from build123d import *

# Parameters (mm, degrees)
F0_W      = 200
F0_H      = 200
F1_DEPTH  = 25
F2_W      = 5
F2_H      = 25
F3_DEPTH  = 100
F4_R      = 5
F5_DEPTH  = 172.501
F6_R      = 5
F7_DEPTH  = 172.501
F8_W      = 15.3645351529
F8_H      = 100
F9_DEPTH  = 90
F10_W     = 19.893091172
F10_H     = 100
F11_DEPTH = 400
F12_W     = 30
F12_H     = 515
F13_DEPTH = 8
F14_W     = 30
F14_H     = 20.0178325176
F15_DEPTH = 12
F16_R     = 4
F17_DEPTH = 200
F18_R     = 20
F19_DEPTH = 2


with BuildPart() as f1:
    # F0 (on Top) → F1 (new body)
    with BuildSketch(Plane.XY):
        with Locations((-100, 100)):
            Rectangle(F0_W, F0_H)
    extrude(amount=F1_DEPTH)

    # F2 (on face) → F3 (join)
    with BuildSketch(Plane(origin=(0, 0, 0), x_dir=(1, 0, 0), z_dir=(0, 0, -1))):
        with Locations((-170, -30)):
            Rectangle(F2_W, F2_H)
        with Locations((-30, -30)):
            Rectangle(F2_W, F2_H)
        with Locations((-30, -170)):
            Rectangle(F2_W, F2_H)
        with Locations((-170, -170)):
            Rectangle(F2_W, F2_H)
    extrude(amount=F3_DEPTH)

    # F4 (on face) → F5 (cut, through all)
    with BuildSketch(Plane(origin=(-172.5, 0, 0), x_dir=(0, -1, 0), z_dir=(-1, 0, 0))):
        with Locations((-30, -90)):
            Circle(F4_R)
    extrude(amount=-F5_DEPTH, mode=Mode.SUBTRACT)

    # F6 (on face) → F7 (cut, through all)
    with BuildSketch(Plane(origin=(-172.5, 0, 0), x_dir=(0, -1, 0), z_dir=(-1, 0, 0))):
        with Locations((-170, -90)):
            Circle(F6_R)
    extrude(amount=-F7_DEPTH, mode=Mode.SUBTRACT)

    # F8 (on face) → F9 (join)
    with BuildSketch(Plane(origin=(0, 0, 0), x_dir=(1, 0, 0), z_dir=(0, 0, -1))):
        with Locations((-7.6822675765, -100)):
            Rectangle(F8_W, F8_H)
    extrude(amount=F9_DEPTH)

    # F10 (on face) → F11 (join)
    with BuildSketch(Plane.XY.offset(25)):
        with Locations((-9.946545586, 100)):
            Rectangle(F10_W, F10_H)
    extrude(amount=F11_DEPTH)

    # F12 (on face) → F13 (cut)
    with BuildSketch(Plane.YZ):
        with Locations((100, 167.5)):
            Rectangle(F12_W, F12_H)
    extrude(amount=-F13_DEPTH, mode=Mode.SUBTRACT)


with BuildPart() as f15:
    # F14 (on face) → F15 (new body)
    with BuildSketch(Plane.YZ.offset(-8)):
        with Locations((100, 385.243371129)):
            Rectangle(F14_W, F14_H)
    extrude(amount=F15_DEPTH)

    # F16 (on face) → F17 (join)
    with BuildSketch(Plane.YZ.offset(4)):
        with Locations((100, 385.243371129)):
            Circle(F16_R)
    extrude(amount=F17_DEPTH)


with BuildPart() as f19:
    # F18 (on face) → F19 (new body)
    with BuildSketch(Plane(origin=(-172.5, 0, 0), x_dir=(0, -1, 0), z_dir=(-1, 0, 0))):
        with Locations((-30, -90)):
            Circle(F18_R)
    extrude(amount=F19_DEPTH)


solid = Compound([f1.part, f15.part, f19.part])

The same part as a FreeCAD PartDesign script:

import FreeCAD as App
import Part
import Sketcher
Q = App.Units.Quantity


def add_polygon(sketch, points):
    """Adds a closed chain of lines whose ends are joined by coincident constraints."""
    first, n = sketch.GeometryCount, len(points)
    for a, b in zip(points, points[1:] + points[:1]):
        sketch.addGeometry(Part.LineSegment(App.Vector(*a, 0), App.Vector(*b, 0)), False)
    for i in range(n):
        sketch.addConstraint(Sketcher.Constraint("Coincident", first + i, 2, first + (i + 1) % n, 1))

doc = App.newDocument("Part")
params = doc.addObject("Spreadsheet::Sheet", "Params")
for row, (alias, value) in enumerate([
    ("sketch1_width", "200 mm"),
    ("pad1_length", "25 mm"),
    ("sketch2_width", "5 mm"),
    ("sketch2_height", "25 mm"),
    ("pad2_length", "100 mm"),
    ("sketch3_diameter", "10 mm"),
    ("sketch4_diameter", "10 mm"),
    ("sketch5_height", "100 mm"),
    ("pad3_length", "90 mm"),
    ("sketch6_height", "100 mm"),
    ("pad4_length", "400 mm"),
    ("sketch7_width", "30 mm"),
    ("sketch7_height", "515 mm"),
    ("pocket3_length", "8 mm"),
    ("sketch8_width", "30 mm"),
    ("pad5_length", "12 mm"),
    ("sketch9_diameter", "8 mm"),
    ("pad6_length", "200 mm"),
    ("sketch10_diameter", "40 mm"),
    ("pad7_length", "2 mm"),
], start=1):
    params.set(f"A{row}", alias)
    params.set(f"B{row}", "=" + value)
    params.setAlias(f"B{row}", alias)

body = doc.addObject("PartDesign::Body", "Body")

sketch1 = body.newObject("Sketcher::SketchObject", "Sketch")
sketch1.AttachmentSupport = (doc.getObject("XY_Plane"), [""])
sketch1.MapMode = "FlatFace"
add_polygon(sketch1, [(-200, 200), (-200, 0), (0, 0), (0, 200)])
sketch1.addConstraint(Sketcher.Constraint("Vertical", 0))
sketch1.addConstraint(Sketcher.Constraint("Horizontal", 1))
sketch1.addConstraint(Sketcher.Constraint("Vertical", 2))
sketch1.addConstraint(Sketcher.Constraint("Horizontal", 3))
sketch1.addConstraint(Sketcher.Constraint("Coincident", 1, 2, -1, 1))
sketch1.addConstraint(Sketcher.Constraint("Equal", 3, 0))
sketch1.addConstraint(Sketcher.Constraint("DistanceX", 1, 1, 1, 2, Q("200 mm")))
sketch1.setExpression("Constraints[10]", "Params.sketch1_width")
pad1 = body.newObject("PartDesign::Pad", "Pad")
pad1.Profile = sketch1
pad1.setExpression("Length", "Params.pad1_length")

sketch2 = body.newObject("Sketcher::SketchObject", "Sketch001")
sketch2.AttachmentSupport = (doc.getObject("XY_Plane"), [""])
sketch2.MapMode = "FlatFace"
add_polygon(sketch2, [(-172, 18), (-172, 42), (-168, 42), (-168, 18)])
add_polygon(sketch2, [(-32, 18), (-32, 42), (-28, 42), (-28, 18)])
add_polygon(sketch2, [(-32, 158), (-32, 182), (-28, 182), (-28, 158)])
add_polygon(sketch2, [(-172, 158), (-172, 182), (-168, 182), (-168, 158)])
sketch2.addConstraint(Sketcher.Constraint("Vertical", 0))
sketch2.addConstraint(Sketcher.Constraint("Horizontal", 1))
sketch2.addConstraint(Sketcher.Constraint("Vertical", 2))
sketch2.addConstraint(Sketcher.Constraint("Horizontal", 3))
sketch2.addConstraint(Sketcher.Constraint("Vertical", 4))
sketch2.addConstraint(Sketcher.Constraint("Horizontal", 5))
sketch2.addConstraint(Sketcher.Constraint("Vertical", 6))
sketch2.addConstraint(Sketcher.Constraint("Horizontal", 7))
sketch2.addConstraint(Sketcher.Constraint("Vertical", 8))
sketch2.addConstraint(Sketcher.Constraint("Horizontal", 9))
sketch2.addConstraint(Sketcher.Constraint("Vertical", 10))
sketch2.addConstraint(Sketcher.Constraint("Horizontal", 11))
sketch2.addConstraint(Sketcher.Constraint("Vertical", 12))
sketch2.addConstraint(Sketcher.Constraint("Horizontal", 13))
sketch2.addConstraint(Sketcher.Constraint("Vertical", 14))
sketch2.addConstraint(Sketcher.Constraint("Horizontal", 15))
sketch2.addConstraint(Sketcher.Constraint("Horizontal", 1, 2, 4, 2))
sketch2.addConstraint(Sketcher.Constraint("Horizontal", 3, 2, 6, 2))
sketch2.addConstraint(Sketcher.Constraint("Horizontal", 9, 2, 12, 2))
sketch2.addConstraint(Sketcher.Constraint("Horizontal", 11, 2, 14, 2))
sketch2.addConstraint(Sketcher.Constraint("Vertical", 7, 2, 8, 2))
sketch2.addConstraint(Sketcher.Constraint("Vertical", 6, 2, 9, 2))
sketch2.addConstraint(Sketcher.Constraint("Vertical", 3, 2, 12, 2))
sketch2.addConstraint(Sketcher.Constraint("Vertical", 2, 2, 13, 2))
sketch2.addConstraint(Sketcher.Constraint("Equal", 3, 5))
sketch2.addConstraint(Sketcher.Constraint("Equal", 6, 8))
sketch2.addConstraint(Sketcher.Constraint("DistanceX", 1, 1, 1, 2, Q("5 mm")))
sketch2.addConstraint(Sketcher.Constraint("DistanceY", 0, 1, 0, 2, Q("25 mm")))
sketch2.addConstraint(Sketcher.Constraint("DistanceX", 1, 2, 4, 2, Q("135 mm")))
sketch2.addConstraint(Sketcher.Constraint("DistanceY", 4, 2, 8, 2, Q("140 mm")))
sketch2.addConstraint(Sketcher.Constraint("DistanceX", 0, 2, -1, 1, Q("172.5 mm")))
sketch2.addConstraint(Sketcher.Constraint("DistanceY", -1, 1, 0, 2, Q("42.5 mm")))
sketch2.setExpression("Constraints[42]", "Params.sketch2_width")
sketch2.setExpression("Constraints[43]", "Params.sketch2_height")
pad2 = body.newObject("PartDesign::Pad", "Pad001")
pad2.Profile = sketch2
pad2.setExpression("Length", "Params.pad2_length")
pad2.Reversed = True

sketch3 = body.newObject("Sketcher::SketchObject", "Sketch002")
sketch3.AttachmentSupport = (doc.getObject("YZ_Plane"), [""])
sketch3.MapMode = "FlatFace"
sketch3.AttachmentOffset = App.Placement(App.Vector(0, 0, -172.5), App.Rotation())
sketch3.addGeometry(Part.Circle(App.Vector(30, -90, 0), App.Vector(0, 0, 1), 5), False)
sketch3.addConstraint(Sketcher.Constraint("Diameter", 0, Q("10 mm")))
sketch3.addConstraint(Sketcher.Constraint("DistanceX", -1, 1, 0, 3, Q("30 mm")))
sketch3.addConstraint(Sketcher.Constraint("DistanceY", 0, 3, -1, 1, Q("90 mm")))
sketch3.setExpression("Constraints[0]", "Params.sketch3_diameter")
pocket1 = body.newObject("PartDesign::Pocket", "Pocket")
pocket1.Profile = sketch3
pocket1.Type = "ThroughAll"
pocket1.Reversed = True

sketch4 = body.newObject("Sketcher::SketchObject", "Sketch003")
sketch4.AttachmentSupport = (doc.getObject("YZ_Plane"), [""])
sketch4.MapMode = "FlatFace"
sketch4.AttachmentOffset = App.Placement(App.Vector(0, 0, -172.5), App.Rotation())
sketch4.addGeometry(Part.Circle(App.Vector(170, -90, 0), App.Vector(0, 0, 1), 5), False)
sketch4.addConstraint(Sketcher.Constraint("Diameter", 0, Q("10 mm")))
sketch4.addConstraint(Sketcher.Constraint("DistanceX", -1, 1, 0, 3, Q("170 mm")))
sketch4.addConstraint(Sketcher.Constraint("DistanceY", 0, 3, -1, 1, Q("90 mm")))
sketch4.setExpression("Constraints[0]", "Params.sketch4_diameter")
pocket2 = body.newObject("PartDesign::Pocket", "Pocket001")
pocket2.Profile = sketch4
pocket2.Type = "ThroughAll"
pocket2.Reversed = True

sketch5 = body.newObject("Sketcher::SketchObject", "Sketch004")
sketch5.AttachmentSupport = (doc.getObject("XY_Plane"), [""])
sketch5.MapMode = "FlatFace"
add_polygon(sketch5, [(-15, 50), (-15, 150), (0, 150), (0, 50)])
sketch5.addConstraint(Sketcher.Constraint("Vertical", 0))
sketch5.addConstraint(Sketcher.Constraint("Horizontal", 1))
sketch5.addConstraint(Sketcher.Constraint("Vertical", 2))
sketch5.addConstraint(Sketcher.Constraint("Horizontal", 3))
sketch5.addConstraint(Sketcher.Constraint("PointOnObject", 1, 2, -2))
sketch5.addConstraint(Sketcher.Constraint("DistanceY", 0, 1, 0, 2, Q("100 mm")))
sketch5.addConstraint(Sketcher.Constraint("DistanceY", -1, 1, 0, 2, Q("150 mm")))
sketch5.addConstraint(Sketcher.Constraint("DistanceX", 1, 1, 1, 2, Q("15.364535 mm")))
sketch5.setExpression("Constraints[9]", "Params.sketch5_height")
pad3 = body.newObject("PartDesign::Pad", "Pad002")
pad3.Profile = sketch5
pad3.setExpression("Length", "Params.pad3_length")
pad3.Reversed = True

sketch6 = body.newObject("Sketcher::SketchObject", "Sketch005")
sketch6.AttachmentSupport = (doc.getObject("XY_Plane"), [""])
sketch6.MapMode = "FlatFace"
sketch6.AttachmentOffset = App.Placement(App.Vector(0, 0, 25), App.Rotation())
add_polygon(sketch6, [(-20, 150), (-20, 50), (0, 50), (0, 150)])
sketch6.addConstraint(Sketcher.Constraint("Vertical", 0))
sketch6.addConstraint(Sketcher.Constraint("Horizontal", 1))
sketch6.addConstraint(Sketcher.Constraint("Vertical", 2))
sketch6.addConstraint(Sketcher.Constraint("Horizontal", 3))
sketch6.addConstraint(Sketcher.Constraint("PointOnObject", 1, 2, -2))
sketch6.addConstraint(Sketcher.Constraint("DistanceY", 0, 2, 0, 1, Q("100 mm")))
sketch6.addConstraint(Sketcher.Constraint("DistanceY", -1, 1, 0, 2, Q("50 mm")))
sketch6.addConstraint(Sketcher.Constraint("DistanceX", 1, 1, 1, 2, Q("19.893091 mm")))
sketch6.setExpression("Constraints[9]", "Params.sketch6_height")
pad4 = body.newObject("PartDesign::Pad", "Pad003")
pad4.Profile = sketch6
pad4.setExpression("Length", "Params.pad4_length")

sketch7 = body.newObject("Sketcher::SketchObject", "Sketch006")
sketch7.AttachmentSupport = (doc.getObject("YZ_Plane"), [""])
sketch7.MapMode = "FlatFace"
add_polygon(sketch7, [(85, 425), (85, -90), (115, -90), (115, 425)])
sketch7.addConstraint(Sketcher.Constraint("Vertical", 0))
sketch7.addConstraint(Sketcher.Constraint("Horizontal", 1))
sketch7.addConstraint(Sketcher.Constraint("Vertical", 2))
sketch7.addConstraint(Sketcher.Constraint("Horizontal", 3))
sketch7.addConstraint(Sketcher.Constraint("DistanceX", 1, 1, 1, 2, Q("30 mm")))
sketch7.addConstraint(Sketcher.Constraint("DistanceY", 0, 2, 0, 1, Q("515 mm")))
sketch7.addConstraint(Sketcher.Constraint("DistanceX", -1, 1, 0, 2, Q("85 mm")))
sketch7.addConstraint(Sketcher.Constraint("DistanceY", 0, 2, -1, 1, Q("90 mm")))
sketch7.setExpression("Constraints[8]", "Params.sketch7_width")
sketch7.setExpression("Constraints[9]", "Params.sketch7_height")
pocket3 = body.newObject("PartDesign::Pocket", "Pocket002")
pocket3.Profile = sketch7
pocket3.setExpression("Length", "Params.pocket3_length")
body2 = doc.addObject("PartDesign::Body", "Body001")

sketch8 = body2.newObject("Sketcher::SketchObject", "Sketch007")
sketch8.AttachmentSupport = (doc.getObject("YZ_Plane001"), [""])
sketch8.MapMode = "FlatFace"
sketch8.AttachmentOffset = App.Placement(App.Vector(0, 0, -8), App.Rotation())
add_polygon(sketch8, [(85, 395), (85, 375), (115, 375), (115, 395)])
sketch8.addConstraint(Sketcher.Constraint("Vertical", 0))
sketch8.addConstraint(Sketcher.Constraint("Horizontal", 1))
sketch8.addConstraint(Sketcher.Constraint("Vertical", 2))
sketch8.addConstraint(Sketcher.Constraint("Horizontal", 3))
sketch8.addConstraint(Sketcher.Constraint("DistanceX", 1, 1, 1, 2, Q("30 mm")))
sketch8.addConstraint(Sketcher.Constraint("DistanceX", -1, 1, 0, 2, Q("85 mm")))
sketch8.addConstraint(Sketcher.Constraint("DistanceY", 0, 2, 0, 1, Q("20.017833 mm")))
sketch8.addConstraint(Sketcher.Constraint("DistanceY", -1, 1, 0, 2, Q("375.234455 mm")))
sketch8.setExpression("Constraints[8]", "Params.sketch8_width")
pad5 = body2.newObject("PartDesign::Pad", "Pad004")
pad5.Profile = sketch8
pad5.setExpression("Length", "Params.pad5_length")

sketch9 = body2.newObject("Sketcher::SketchObject", "Sketch008")
sketch9.AttachmentSupport = (doc.getObject("YZ_Plane001"), [""])
sketch9.MapMode = "FlatFace"
sketch9.AttachmentOffset = App.Placement(App.Vector(0, 0, 4), App.Rotation())
sketch9.addGeometry(Part.Circle(App.Vector(100, 385.2, 0), App.Vector(0, 0, 1), 4), False)
sketch9.addConstraint(Sketcher.Constraint("Diameter", 0, Q("8 mm")))
sketch9.addConstraint(Sketcher.Constraint("DistanceX", -1, 1, 0, 3, Q("100 mm")))
sketch9.addConstraint(Sketcher.Constraint("DistanceY", -1, 1, 0, 3, Q("385.243371 mm")))
sketch9.setExpression("Constraints[0]", "Params.sketch9_diameter")
pad6 = body2.newObject("PartDesign::Pad", "Pad005")
pad6.Profile = sketch9
pad6.setExpression("Length", "Params.pad6_length")
body3 = doc.addObject("PartDesign::Body", "Body002")

sketch10 = body3.newObject("Sketcher::SketchObject", "Sketch009")
sketch10.AttachmentSupport = (doc.getObject("YZ_Plane002"), [""])
sketch10.MapMode = "FlatFace"
sketch10.AttachmentOffset = App.Placement(App.Vector(0, 0, -172.5), App.Rotation())
sketch10.addGeometry(Part.Circle(App.Vector(30, -90, 0), App.Vector(0, 0, 1), 20), False)
sketch10.addConstraint(Sketcher.Constraint("Diameter", 0, Q("40 mm")))
sketch10.addConstraint(Sketcher.Constraint("DistanceX", -1, 1, 0, 3, Q("30 mm")))
sketch10.addConstraint(Sketcher.Constraint("DistanceY", 0, 3, -1, 1, Q("90 mm")))
sketch10.setExpression("Constraints[0]", "Params.sketch10_diameter")
pad7 = body3.newObject("PartDesign::Pad", "Pad006")
pad7.Profile = sketch10
pad7.setExpression("Length", "Params.pad7_length")
pad7.Reversed = True

doc.recompute()
